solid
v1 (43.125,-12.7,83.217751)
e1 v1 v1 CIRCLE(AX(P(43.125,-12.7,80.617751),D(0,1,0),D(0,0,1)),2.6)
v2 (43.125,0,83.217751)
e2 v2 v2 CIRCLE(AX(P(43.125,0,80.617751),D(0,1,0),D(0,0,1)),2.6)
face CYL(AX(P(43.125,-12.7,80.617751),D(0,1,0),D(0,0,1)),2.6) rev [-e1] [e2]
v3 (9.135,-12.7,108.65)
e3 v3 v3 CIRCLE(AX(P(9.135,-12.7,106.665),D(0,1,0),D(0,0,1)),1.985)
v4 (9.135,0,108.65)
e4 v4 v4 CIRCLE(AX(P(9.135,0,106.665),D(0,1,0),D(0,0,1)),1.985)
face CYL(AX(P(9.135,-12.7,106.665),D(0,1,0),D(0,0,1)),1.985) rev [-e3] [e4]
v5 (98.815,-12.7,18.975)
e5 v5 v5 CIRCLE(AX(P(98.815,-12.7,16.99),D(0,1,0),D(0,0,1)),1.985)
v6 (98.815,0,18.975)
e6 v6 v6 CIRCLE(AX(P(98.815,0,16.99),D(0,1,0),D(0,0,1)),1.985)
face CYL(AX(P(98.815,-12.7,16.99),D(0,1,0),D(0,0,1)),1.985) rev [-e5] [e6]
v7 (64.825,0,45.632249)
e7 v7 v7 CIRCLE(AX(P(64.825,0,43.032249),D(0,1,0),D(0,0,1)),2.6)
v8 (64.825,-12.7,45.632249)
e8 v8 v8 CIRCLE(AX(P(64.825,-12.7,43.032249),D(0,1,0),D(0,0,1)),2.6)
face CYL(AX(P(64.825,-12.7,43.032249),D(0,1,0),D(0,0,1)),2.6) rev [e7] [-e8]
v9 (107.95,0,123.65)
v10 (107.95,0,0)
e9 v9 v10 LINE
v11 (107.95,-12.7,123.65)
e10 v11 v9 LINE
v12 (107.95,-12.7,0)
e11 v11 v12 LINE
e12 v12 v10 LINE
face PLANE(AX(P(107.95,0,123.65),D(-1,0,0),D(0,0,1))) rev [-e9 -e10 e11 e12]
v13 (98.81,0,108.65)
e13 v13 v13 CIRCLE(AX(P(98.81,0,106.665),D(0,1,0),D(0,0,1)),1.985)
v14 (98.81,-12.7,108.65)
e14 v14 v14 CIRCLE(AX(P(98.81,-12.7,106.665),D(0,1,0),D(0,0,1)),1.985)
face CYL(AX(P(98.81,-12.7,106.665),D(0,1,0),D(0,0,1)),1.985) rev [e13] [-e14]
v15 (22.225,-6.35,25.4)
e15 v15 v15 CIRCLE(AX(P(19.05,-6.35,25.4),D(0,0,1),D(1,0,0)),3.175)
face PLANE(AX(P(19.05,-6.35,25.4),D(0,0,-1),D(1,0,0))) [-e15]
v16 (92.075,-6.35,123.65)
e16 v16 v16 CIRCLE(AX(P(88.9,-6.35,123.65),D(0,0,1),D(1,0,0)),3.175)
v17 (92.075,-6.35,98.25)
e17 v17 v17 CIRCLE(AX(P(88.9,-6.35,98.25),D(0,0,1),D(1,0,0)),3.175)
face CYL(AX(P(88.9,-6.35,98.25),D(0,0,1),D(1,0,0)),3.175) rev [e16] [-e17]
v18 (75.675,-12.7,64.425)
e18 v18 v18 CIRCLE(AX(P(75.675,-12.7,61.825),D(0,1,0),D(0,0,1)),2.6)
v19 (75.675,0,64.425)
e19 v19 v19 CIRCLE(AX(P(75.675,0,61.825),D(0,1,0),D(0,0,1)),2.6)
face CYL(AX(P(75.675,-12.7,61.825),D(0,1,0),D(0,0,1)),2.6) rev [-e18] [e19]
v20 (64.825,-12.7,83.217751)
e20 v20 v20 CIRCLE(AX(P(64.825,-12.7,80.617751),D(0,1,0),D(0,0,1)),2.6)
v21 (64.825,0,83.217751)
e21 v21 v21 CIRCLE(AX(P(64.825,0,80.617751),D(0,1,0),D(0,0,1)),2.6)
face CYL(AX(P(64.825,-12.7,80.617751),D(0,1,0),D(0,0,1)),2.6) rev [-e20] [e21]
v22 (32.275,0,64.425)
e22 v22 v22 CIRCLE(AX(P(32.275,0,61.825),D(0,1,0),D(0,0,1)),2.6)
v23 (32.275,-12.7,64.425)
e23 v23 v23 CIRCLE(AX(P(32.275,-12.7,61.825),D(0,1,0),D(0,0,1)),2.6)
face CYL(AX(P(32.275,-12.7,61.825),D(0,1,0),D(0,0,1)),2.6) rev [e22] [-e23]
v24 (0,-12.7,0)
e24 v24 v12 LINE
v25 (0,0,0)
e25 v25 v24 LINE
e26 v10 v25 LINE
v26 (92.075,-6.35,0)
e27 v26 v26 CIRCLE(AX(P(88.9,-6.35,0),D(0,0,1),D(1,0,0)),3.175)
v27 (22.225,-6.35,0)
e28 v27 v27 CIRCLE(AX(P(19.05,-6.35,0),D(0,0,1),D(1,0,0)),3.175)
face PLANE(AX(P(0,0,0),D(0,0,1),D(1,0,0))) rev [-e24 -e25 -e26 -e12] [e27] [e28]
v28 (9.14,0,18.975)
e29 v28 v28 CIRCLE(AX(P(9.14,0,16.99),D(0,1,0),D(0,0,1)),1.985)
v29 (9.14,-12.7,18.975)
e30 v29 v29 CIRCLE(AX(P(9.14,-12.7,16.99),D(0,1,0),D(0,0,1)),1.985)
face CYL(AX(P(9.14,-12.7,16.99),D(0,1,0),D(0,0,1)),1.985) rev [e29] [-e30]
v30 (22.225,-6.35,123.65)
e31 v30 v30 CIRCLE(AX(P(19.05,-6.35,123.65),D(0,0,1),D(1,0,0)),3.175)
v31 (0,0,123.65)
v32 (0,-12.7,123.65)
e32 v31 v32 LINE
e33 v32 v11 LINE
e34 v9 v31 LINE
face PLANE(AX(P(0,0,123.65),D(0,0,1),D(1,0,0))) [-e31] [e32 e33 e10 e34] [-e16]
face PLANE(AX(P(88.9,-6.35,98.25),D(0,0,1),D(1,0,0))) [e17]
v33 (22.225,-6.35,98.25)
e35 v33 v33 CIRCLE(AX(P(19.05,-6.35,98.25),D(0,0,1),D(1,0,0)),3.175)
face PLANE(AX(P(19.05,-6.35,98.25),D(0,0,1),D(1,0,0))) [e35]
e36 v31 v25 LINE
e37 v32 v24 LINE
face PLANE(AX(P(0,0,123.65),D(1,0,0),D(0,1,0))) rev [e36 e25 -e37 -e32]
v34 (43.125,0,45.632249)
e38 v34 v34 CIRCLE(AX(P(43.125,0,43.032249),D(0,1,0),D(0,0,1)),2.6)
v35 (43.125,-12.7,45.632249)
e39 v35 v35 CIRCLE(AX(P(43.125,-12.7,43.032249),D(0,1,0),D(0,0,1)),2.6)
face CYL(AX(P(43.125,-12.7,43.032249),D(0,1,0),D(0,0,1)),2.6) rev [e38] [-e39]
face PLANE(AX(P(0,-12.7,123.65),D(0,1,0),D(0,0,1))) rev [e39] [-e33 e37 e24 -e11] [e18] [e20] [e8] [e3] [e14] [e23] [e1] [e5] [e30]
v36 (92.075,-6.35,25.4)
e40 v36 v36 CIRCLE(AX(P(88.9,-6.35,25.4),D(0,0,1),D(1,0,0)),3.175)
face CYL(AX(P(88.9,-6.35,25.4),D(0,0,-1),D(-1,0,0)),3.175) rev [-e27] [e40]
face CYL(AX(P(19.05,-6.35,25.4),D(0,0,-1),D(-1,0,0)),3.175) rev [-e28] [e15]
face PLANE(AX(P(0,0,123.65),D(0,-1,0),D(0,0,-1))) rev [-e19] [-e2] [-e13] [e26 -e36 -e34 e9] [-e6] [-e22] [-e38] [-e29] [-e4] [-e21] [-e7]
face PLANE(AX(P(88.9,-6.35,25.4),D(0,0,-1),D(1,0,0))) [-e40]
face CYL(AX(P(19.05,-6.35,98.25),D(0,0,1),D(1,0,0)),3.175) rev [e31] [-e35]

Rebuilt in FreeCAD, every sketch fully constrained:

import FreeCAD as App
import Part
import Sketcher

V = App.Vector
Q = App.Units.Quantity


def add_polygon(sketch, points):
    """Adds a closed chain of lines whose ends are joined by coincident constraints."""
    first, n = sketch.GeometryCount, len(points)
    for a, b in zip(points, points[1:] + points[:1]):
        sketch.addGeometry(Part.LineSegment(App.Vector(*a, 0), App.Vector(*b, 0)), False)
    for i in range(n):
        sketch.addConstraint(Sketcher.Constraint("Coincident", first + i, 2, first + (i + 1) % n, 1))

doc = App.newDocument("Part")
params = doc.addObject("Spreadsheet::Sheet", "Params")
for row, (alias, value) in enumerate([
    ("sketch1_height", "0.5 in"),
    ("sketch1_width", "4.25 in"),
    ("pad1_length", "123.65 mm"),
    ("sketch2_diameter", "0.25 in"),
    ("pocket1_length", "1 in"),
], start=1):
    params.set(f"A{row}", alias)
    params.set(f"B{row}", "=" + value)
    params.setAlias(f"B{row}", alias)

body = doc.addObject("PartDesign::Body", "Body")

sketch1 = body.newObject("Sketcher::SketchObject", "Sketch")
sketch1.AttachmentSupport = (doc.getObject("XY_Plane"), [""])
sketch1.MapMode = "FlatFace"
add_polygon(sketch1, [(0, 0), (0, -13), (108, -13), (108, 0)])
sketch1.addConstraint([
    Sketcher.Constraint("Vertical", 0),
    Sketcher.Constraint("Horizontal", 1),
    Sketcher.Constraint("Vertical", 2),
    Sketcher.Constraint("Horizontal", 3),
    Sketcher.Constraint("Coincident", 3, 2, -1, 1),
    Sketcher.Constraint("DistanceY", 0, 2, 0, 1, Q("0.5 in")),
    Sketcher.Constraint("DistanceX", 1, 1, 1, 2, Q("4.25 in")),
])
sketch1.setExpression("Constraints[9]", "Params.sketch1_height")
sketch1.setExpression("Constraints[10]", "Params.sketch1_width")
pad1 = body.newObject("PartDesign::Pad", "Pad")
pad1.Profile = sketch1
pad1.setExpression("Length", "Params.pad1_length")

sketch2 = body.newObject("Sketcher::SketchObject", "Sketch001")
sketch2.AttachmentSupport = (doc.getObject("XY_Plane"), [""])
sketch2.MapMode = "FlatFace"
sketch2.AttachmentOffset = App.Placement(V(0, 0, 123.65), App.Rotation())
sketch2.addGeometry([
    Part.Circle(V(19.1, -6.3, 0), V(0, 0, 1), 3.2),
    Part.Circle(V(88.9, -6.3, 0), V(0, 0, 1), 3.2),
], False)
sketch2.addConstraint([
    Sketcher.Constraint("Equal", 0, 1),
    Sketcher.Constraint("Horizontal", 0, 3, 1, 3),
    Sketcher.Constraint("Diameter", 0, Q("0.25 in")),
    Sketcher.Constraint("DistanceX", -1, 1, 1, 3, Q("3.5 in")),
    Sketcher.Constraint("DistanceX", -1, 1, 0, 3, Q("0.75 in")),
    Sketcher.Constraint("DistanceY", 0, 3, -1, 1, Q("0.25 in")),
])
sketch2.setExpression("Constraints[2]", "Params.sketch2_diameter")
pocket1 = body.newObject("PartDesign::Pocket", "Pocket")
pocket1.Profile = sketch2
pocket1.setExpression("Length", "Params.pocket1_length")
doc.recompute()

datumplane = body.newObject("PartDesign::Plane", "DatumPlane")
datumplane.AttachmentSupport = (doc.getObject("XY_Plane"), [""])
datumplane.MapMode = "FlatFace"
datumplane.AttachmentOffset = App.Placement(V(0, 0, 61.825), App.Rotation())
mirrored = body.newObject("PartDesign::Mirrored", "Mirrored")
mirrored.Originals = [pocket1]
mirrored.MirrorPlane = (datumplane, [""])
body.Tip = mirrored

sketch3 = body.newObject("Sketcher::SketchObject", "Sketch002")
sketch3.AttachmentSupport = (doc.getObject("XZ_Plane"), [""])
sketch3.MapMode = "FlatFace"
sketch3.addGeometry([
    Part.Circle(V(9.1, 106.7, 0), V(0, 0, 1), 2),
    Part.Circle(V(9.1, 17, 0), V(0, 0, 1), 2),
    Part.Circle(V(98.8, 106.7, 0), V(0, 0, 1), 2),
    Part.Circle(V(98.8, 17, 0), V(0, 0, 1), 2),
], False)
sketch3.addConstraint([
    Sketcher.Constraint("Equal", 0, 1),
    Sketcher.Constraint("Equal", 1, 2),
    Sketcher.Constraint("Equal", 2, 3),
    Sketcher.Constraint("Horizontal", 0, 3, 2, 3),
    Sketcher.Constraint("Horizontal", 1, 3, 3, 3),
    Sketcher.Constraint("Diameter", 0, 3.97),
    Sketcher.Constraint("DistanceX", -1, 1, 0, 3, 9.135),
    Sketcher.Constraint("DistanceY", -1, 1, 0, 3, 106.665),
    Sketcher.Constraint("DistanceX", -1, 1, 1, 3, 9.14),
    Sketcher.Constraint("DistanceY", -1, 1, 1, 3, 16.99),
    Sketcher.Constraint("DistanceX", -1, 1, 2, 3, 98.81),
    Sketcher.Constraint("DistanceX", -1, 1, 3, 3, 98.815),
])
pocket2 = body.newObject("PartDesign::Pocket", "Pocket001")
pocket2.Profile = sketch3
pocket2.Type = "ThroughAll"
pocket2.Reversed = True

sketch4 = body.newObject("Sketcher::SketchObject", "Sketch003")
sketch4.AttachmentSupport = (doc.getObject("XZ_Plane"), [""])
sketch4.MapMode = "FlatFace"
sketch4.addGeometry([
    Part.Circle(V(32.3, 61.8, 0), V(0, 0, 1), 2.6),
    Part.Circle(V(43.1, 43, 0), V(0, 0, 1), 2.6),
    Part.Circle(V(64.8, 43, 0), V(0, 0, 1), 2.6),
    Part.Circle(V(75.7, 61.8, 0), V(0, 0, 1), 2.6),
    Part.Circle(V(64.8, 80.6, 0), V(0, 0, 1), 2.6),
    Part.Circle(V(43.1, 80.6, 0), V(0, 0, 1), 2.6),
], False)
sketch4.addConstraint([
    Sketcher.Constraint("Equal", 0, 1),
    Sketcher.Constraint("Equal", 1, 2),
    Sketcher.Constraint("Equal", 2, 3),
    Sketcher.Constraint("Equal", 3, 4),
    Sketcher.Constraint("Equal", 4, 5),
    Sketcher.Constraint("Horizontal", 1, 3, 2, 3),
    Sketcher.Constraint("Horizontal", 0, 3, 3, 3),
    Sketcher.Constraint("Horizontal", 4, 3, 5, 3),
    Sketcher.Constraint("Vertical", 2, 3, 4, 3),
    Sketcher.Constraint("Vertical", 1, 3, 5, 3),
    Sketcher.Constraint("Diameter", 0, 5.2),
    Sketcher.Constraint("DistanceX", -1, 1, 0, 3, 32.275),
    Sketcher.Constraint("DistanceY", -1, 1, 0, 3, 61.825),
    Sketcher.Constraint("DistanceX", -1, 1, 1, 3, 43.125),
    Sketcher.Constraint("DistanceX", -1, 1, 2, 3, 64.825),
    Sketcher.Constraint("DistanceX", -1, 1, 3, 3, 75.675),
    Sketcher.Constraint("DistanceY", -1, 1, 1, 3, 43.032249),
    Sketcher.Constraint("DistanceY", -1, 1, 4, 3, 80.617751),
])
pocket3 = body.newObject("PartDesign::Pocket", "Pocket002")
pocket3.Profile = sketch4
pocket3.Type = "ThroughAll"
pocket3.Reversed = True

doc.recompute()
